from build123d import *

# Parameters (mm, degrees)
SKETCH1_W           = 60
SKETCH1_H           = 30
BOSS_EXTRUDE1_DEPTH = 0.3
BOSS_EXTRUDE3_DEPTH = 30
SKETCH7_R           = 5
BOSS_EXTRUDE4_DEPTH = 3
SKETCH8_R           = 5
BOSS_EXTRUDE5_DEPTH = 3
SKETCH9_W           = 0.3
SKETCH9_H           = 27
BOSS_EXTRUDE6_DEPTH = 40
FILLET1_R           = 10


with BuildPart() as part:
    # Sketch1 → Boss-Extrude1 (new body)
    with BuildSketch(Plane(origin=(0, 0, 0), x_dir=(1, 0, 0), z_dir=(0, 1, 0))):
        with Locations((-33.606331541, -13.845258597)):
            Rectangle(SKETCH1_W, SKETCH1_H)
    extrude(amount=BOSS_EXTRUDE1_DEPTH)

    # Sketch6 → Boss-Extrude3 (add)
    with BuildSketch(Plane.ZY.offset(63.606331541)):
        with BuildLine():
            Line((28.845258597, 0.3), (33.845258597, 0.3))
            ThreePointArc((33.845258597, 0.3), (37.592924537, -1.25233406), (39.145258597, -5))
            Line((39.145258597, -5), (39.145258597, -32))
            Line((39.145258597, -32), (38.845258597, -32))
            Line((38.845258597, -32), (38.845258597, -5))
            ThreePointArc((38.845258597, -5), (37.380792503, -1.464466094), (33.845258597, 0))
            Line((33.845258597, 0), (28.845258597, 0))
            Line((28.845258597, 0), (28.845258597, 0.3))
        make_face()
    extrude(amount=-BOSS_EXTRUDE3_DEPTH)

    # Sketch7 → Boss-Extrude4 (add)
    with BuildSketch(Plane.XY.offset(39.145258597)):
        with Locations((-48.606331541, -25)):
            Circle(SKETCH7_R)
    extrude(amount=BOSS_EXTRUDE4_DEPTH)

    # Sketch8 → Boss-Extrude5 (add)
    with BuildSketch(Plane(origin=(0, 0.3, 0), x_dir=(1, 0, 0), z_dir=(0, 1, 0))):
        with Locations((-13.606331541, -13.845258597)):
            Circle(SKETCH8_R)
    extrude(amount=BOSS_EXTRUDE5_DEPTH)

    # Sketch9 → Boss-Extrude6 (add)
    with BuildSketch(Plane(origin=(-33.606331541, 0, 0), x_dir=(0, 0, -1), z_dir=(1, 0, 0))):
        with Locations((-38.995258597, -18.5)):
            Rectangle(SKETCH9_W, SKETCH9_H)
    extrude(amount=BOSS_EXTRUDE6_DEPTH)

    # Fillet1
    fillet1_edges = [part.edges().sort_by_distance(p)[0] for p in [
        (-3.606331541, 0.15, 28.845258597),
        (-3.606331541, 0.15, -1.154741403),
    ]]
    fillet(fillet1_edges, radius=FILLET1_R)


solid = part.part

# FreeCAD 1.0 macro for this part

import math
import FreeCAD as App
import Part
import Sketcher


def edges_at(feature, points):
    """Names of the edges that pass closest to the given points."""
    edges = feature.Shape.Edges
    near = lambda p: min(range(len(edges)), key=lambda i: edges[i].distToShape(Part.Vertex(*p))[0])
    return sorted({f"Edge{near(p) + 1}" for p in points})


def add_polygon(sketch, points):
    """Adds a closed chain of lines whose ends are joined by coincident constraints."""
    first, n = sketch.GeometryCount, len(points)
    for a, b in zip(points, points[1:] + points[:1]):
        sketch.addGeometry(Part.LineSegment(App.Vector(*a, 0), App.Vector(*b, 0)), False)
    for i in range(n):
        sketch.addConstraint(Sketcher.Constraint("Coincident", first + i, 2, first + (i + 1) % n, 1))

doc = App.newDocument("Part")
body = doc.addObject("PartDesign::Body", "Body")

# Sketch on XZ plane
sketch1 = doc.addObject("Sketcher::SketchObject", "Sketch")
body.addObject(sketch1)
sketch1.AttachmentSupport = (doc.XZ_Plane, [""])
sketch1.MapMode = "FlatFace"
add_polygon(sketch1, [(-64, -1), (-64, 29), (-4, 29), (-4, -1)])  # lines 0-3
sketch1.addConstraint([
    Sketcher.Constraint("Vertical", 0),
    Sketcher.Constraint("Horizontal", 1),
    Sketcher.Constraint("Vertical", 2),
    Sketcher.Constraint("Horizontal", 3),
    Sketcher.Constraint("DistanceX", 1, 1, 1, 2, 60.0),
    Sketcher.Constraint("DistanceY", 0, 1, 0, 2, 30.0),
    Sketcher.Constraint("DistanceX", 0, 2, -1, 1, 63.606332),
    Sketcher.Constraint("DistanceY", -1, 1, 0, 2, 28.845259),
])
pad1 = doc.addObject("PartDesign::Pad", "Pad")
body.addObject(pad1)
pad1.Profile = sketch1
pad1.Length = 0.3
pad1.Reversed = True

# Sketch on YZ plane
sketch2 = doc.addObject("Sketcher::SketchObject", "Sketch001")
body.addObject(sketch2)
sketch2.AttachmentSupport = (doc.YZ_Plane, [""])
sketch2.MapMode = "FlatFace"
sketch2.AttachmentOffset = App.Placement(App.Vector(0, 0, -63.606332), App.Rotation())
sketch2.addGeometry([
    Part.LineSegment(App.Vector(0.3, 33.85, 0), App.Vector(0.3, 28.85, 0)),  # 0
    Part.LineSegment(App.Vector(0.3, 28.85, 0), App.Vector(0, 28.85, 0)),  # 1
    Part.LineSegment(App.Vector(0, 28.85, 0), App.Vector(0, 33.85, 0)),  # 2
    Part.ArcOfCircle(Part.Circle(App.Vector(-5, 33.85, 0), App.Vector(0, 0, 1), 5), math.radians(0), math.radians(90)),  # 3
    Part.LineSegment(App.Vector(-5, 38.85, 0), App.Vector(-32, 38.85, 0)),  # 4
    Part.LineSegment(App.Vector(-32, 38.85, 0), App.Vector(-32, 39.15, 0)),  # 5
    Part.LineSegment(App.Vector(-32, 39.15, 0), App.Vector(-5, 39.15, 0)),  # 6
    Part.ArcOfCircle(Part.Circle(App.Vector(-5, 33.85, 0), App.Vector(0, 0, 1), 5.3), math.radians(0), math.radians(90)),  # 7
], False)
sketch2.addConstraint([
    Sketcher.Constraint("Coincident", 0, 2, 1, 1),
    Sketcher.Constraint("Coincident", 1, 2, 2, 1),
    Sketcher.Constraint("Tangent", 2, 2, 3, 1),
    Sketcher.Constraint("Tangent", 3, 2, 4, 1),
    Sketcher.Constraint("Coincident", 4, 2, 5, 1),
    Sketcher.Constraint("Coincident", 5, 2, 6, 1),
    Sketcher.Constraint("Tangent", 6, 2, 7, 2),
    Sketcher.Constraint("Tangent", 7, 1, 0, 1),
    Sketcher.Constraint("Vertical", 0),
    Sketcher.Constraint("Horizontal", 1),
    Sketcher.Constraint("Vertical", 2),
    Sketcher.Constraint("Horizontal", 4),
    Sketcher.Constraint("Vertical", 5),
    Sketcher.Constraint("Horizontal", 6),
    Sketcher.Constraint("Coincident", 7, 3, 3, 3),
    Sketcher.Constraint("PointOnObject", 1, 2, -2),
    Sketcher.Constraint("Radius", 3, 5.0),
    Sketcher.Constraint("Radius", 7, 5.3),
    Sketcher.Constraint("DistanceX", 4, 2, 4, 1, 27.0),
    Sketcher.Constraint("DistanceY", 0, 2, 0, 1, 5.0),
    Sketcher.Constraint("DistanceY", -1, 1, 3, 3, 33.845259),
])
pad2 = doc.addObject("PartDesign::Pad", "Pad001")
body.addObject(pad2)
pad2.Profile = sketch2
pad2.Length = 30

# Sketch on XY plane
sketch3 = doc.addObject("Sketcher::SketchObject", "Sketch002")
body.addObject(sketch3)
sketch3.AttachmentSupport = (doc.XY_Plane, [""])
sketch3.MapMode = "FlatFace"
sketch3.AttachmentOffset = App.Placement(App.Vector(0, 0, 39.145259), App.Rotation())
sketch3.addGeometry(Part.Circle(App.Vector(-49, -25, 0), App.Vector(0, 0, 1), 5), False)
sketch3.addConstraint([
    Sketcher.Constraint("Diameter", 0, 10.0),
    Sketcher.Constraint("DistanceY", 0, 3, -1, 1, 25.0),
    Sketcher.Constraint("DistanceX", 0, 3, -1, 1, 48.606332),
])
pad3 = doc.addObject("PartDesign::Pad", "Pad002")
body.addObject(pad3)
pad3.Profile = sketch3
pad3.Length = 3

# Sketch on XZ plane
sketch4 = doc.addObject("Sketcher::SketchObject", "Sketch003")
body.addObject(sketch4)
sketch4.AttachmentSupport = (doc.XZ_Plane, [""])
sketch4.MapMode = "FlatFace"
sketch4.AttachmentOffset = App.Placement(App.Vector(0, 0, -0.3), App.Rotation())
sketch4.addGeometry(Part.Circle(App.Vector(-14, 14, 0), App.Vector(0, 0, 1), 5), False)
sketch4.addConstraint([
    Sketcher.Constraint("Diameter", 0, 10.0),
    Sketcher.Constraint("DistanceX", 0, 3, -1, 1, 13.606332),
    Sketcher.Constraint("DistanceY", -1, 1, 0, 3, 13.845259),
])
pad4 = doc.addObject("PartDesign::Pad", "Pad003")
body.addObject(pad4)
pad4.Profile = sketch4
pad4.Length = 3
pad4.Reversed = True

# Sketch on YZ plane
sketch5 = doc.addObject("Sketcher::SketchObject", "Sketch004")
body.addObject(sketch5)
sketch5.AttachmentSupport = (doc.YZ_Plane, [""])
sketch5.MapMode = "FlatFace"
sketch5.AttachmentOffset = App.Placement(App.Vector(0, 0, -33.606332), App.Rotation())
add_polygon(sketch5, [(-5, 39.15), (-32, 39.15), (-32, 38.85), (-5, 38.85)])  # lines 0-3
sketch5.addConstraint([
    Sketcher.Constraint("Horizontal", 0),
    Sketcher.Constraint("Vertical", 1),
    Sketcher.Constraint("Horizontal", 2),
    Sketcher.Constraint("Vertical", 3),
    Sketcher.Constraint("DistanceX", 0, 2, 0, 1, 27.0),
    Sketcher.Constraint("DistanceY", 1, 2, 1, 1, 0.3),
    Sketcher.Constraint("DistanceX", 0, 2, -1, 1, 32.0),
    Sketcher.Constraint("DistanceY", -1, 1, 0, 2, 39.145259),
])
pad5 = doc.addObject("PartDesign::Pad", "Pad004")
body.addObject(pad5)
pad5.Profile = sketch5
pad5.Length = 40
doc.recompute()

fillet = doc.addObject("PartDesign::Fillet", "Fillet")
body.addObject(fillet)
fillet.Base = (pad5, edges_at(pad5, [(-3.606, 0.15, 28.845), (-3.606, 0.15, -1.155)]))
fillet.Radius = 10

doc.recompute()
